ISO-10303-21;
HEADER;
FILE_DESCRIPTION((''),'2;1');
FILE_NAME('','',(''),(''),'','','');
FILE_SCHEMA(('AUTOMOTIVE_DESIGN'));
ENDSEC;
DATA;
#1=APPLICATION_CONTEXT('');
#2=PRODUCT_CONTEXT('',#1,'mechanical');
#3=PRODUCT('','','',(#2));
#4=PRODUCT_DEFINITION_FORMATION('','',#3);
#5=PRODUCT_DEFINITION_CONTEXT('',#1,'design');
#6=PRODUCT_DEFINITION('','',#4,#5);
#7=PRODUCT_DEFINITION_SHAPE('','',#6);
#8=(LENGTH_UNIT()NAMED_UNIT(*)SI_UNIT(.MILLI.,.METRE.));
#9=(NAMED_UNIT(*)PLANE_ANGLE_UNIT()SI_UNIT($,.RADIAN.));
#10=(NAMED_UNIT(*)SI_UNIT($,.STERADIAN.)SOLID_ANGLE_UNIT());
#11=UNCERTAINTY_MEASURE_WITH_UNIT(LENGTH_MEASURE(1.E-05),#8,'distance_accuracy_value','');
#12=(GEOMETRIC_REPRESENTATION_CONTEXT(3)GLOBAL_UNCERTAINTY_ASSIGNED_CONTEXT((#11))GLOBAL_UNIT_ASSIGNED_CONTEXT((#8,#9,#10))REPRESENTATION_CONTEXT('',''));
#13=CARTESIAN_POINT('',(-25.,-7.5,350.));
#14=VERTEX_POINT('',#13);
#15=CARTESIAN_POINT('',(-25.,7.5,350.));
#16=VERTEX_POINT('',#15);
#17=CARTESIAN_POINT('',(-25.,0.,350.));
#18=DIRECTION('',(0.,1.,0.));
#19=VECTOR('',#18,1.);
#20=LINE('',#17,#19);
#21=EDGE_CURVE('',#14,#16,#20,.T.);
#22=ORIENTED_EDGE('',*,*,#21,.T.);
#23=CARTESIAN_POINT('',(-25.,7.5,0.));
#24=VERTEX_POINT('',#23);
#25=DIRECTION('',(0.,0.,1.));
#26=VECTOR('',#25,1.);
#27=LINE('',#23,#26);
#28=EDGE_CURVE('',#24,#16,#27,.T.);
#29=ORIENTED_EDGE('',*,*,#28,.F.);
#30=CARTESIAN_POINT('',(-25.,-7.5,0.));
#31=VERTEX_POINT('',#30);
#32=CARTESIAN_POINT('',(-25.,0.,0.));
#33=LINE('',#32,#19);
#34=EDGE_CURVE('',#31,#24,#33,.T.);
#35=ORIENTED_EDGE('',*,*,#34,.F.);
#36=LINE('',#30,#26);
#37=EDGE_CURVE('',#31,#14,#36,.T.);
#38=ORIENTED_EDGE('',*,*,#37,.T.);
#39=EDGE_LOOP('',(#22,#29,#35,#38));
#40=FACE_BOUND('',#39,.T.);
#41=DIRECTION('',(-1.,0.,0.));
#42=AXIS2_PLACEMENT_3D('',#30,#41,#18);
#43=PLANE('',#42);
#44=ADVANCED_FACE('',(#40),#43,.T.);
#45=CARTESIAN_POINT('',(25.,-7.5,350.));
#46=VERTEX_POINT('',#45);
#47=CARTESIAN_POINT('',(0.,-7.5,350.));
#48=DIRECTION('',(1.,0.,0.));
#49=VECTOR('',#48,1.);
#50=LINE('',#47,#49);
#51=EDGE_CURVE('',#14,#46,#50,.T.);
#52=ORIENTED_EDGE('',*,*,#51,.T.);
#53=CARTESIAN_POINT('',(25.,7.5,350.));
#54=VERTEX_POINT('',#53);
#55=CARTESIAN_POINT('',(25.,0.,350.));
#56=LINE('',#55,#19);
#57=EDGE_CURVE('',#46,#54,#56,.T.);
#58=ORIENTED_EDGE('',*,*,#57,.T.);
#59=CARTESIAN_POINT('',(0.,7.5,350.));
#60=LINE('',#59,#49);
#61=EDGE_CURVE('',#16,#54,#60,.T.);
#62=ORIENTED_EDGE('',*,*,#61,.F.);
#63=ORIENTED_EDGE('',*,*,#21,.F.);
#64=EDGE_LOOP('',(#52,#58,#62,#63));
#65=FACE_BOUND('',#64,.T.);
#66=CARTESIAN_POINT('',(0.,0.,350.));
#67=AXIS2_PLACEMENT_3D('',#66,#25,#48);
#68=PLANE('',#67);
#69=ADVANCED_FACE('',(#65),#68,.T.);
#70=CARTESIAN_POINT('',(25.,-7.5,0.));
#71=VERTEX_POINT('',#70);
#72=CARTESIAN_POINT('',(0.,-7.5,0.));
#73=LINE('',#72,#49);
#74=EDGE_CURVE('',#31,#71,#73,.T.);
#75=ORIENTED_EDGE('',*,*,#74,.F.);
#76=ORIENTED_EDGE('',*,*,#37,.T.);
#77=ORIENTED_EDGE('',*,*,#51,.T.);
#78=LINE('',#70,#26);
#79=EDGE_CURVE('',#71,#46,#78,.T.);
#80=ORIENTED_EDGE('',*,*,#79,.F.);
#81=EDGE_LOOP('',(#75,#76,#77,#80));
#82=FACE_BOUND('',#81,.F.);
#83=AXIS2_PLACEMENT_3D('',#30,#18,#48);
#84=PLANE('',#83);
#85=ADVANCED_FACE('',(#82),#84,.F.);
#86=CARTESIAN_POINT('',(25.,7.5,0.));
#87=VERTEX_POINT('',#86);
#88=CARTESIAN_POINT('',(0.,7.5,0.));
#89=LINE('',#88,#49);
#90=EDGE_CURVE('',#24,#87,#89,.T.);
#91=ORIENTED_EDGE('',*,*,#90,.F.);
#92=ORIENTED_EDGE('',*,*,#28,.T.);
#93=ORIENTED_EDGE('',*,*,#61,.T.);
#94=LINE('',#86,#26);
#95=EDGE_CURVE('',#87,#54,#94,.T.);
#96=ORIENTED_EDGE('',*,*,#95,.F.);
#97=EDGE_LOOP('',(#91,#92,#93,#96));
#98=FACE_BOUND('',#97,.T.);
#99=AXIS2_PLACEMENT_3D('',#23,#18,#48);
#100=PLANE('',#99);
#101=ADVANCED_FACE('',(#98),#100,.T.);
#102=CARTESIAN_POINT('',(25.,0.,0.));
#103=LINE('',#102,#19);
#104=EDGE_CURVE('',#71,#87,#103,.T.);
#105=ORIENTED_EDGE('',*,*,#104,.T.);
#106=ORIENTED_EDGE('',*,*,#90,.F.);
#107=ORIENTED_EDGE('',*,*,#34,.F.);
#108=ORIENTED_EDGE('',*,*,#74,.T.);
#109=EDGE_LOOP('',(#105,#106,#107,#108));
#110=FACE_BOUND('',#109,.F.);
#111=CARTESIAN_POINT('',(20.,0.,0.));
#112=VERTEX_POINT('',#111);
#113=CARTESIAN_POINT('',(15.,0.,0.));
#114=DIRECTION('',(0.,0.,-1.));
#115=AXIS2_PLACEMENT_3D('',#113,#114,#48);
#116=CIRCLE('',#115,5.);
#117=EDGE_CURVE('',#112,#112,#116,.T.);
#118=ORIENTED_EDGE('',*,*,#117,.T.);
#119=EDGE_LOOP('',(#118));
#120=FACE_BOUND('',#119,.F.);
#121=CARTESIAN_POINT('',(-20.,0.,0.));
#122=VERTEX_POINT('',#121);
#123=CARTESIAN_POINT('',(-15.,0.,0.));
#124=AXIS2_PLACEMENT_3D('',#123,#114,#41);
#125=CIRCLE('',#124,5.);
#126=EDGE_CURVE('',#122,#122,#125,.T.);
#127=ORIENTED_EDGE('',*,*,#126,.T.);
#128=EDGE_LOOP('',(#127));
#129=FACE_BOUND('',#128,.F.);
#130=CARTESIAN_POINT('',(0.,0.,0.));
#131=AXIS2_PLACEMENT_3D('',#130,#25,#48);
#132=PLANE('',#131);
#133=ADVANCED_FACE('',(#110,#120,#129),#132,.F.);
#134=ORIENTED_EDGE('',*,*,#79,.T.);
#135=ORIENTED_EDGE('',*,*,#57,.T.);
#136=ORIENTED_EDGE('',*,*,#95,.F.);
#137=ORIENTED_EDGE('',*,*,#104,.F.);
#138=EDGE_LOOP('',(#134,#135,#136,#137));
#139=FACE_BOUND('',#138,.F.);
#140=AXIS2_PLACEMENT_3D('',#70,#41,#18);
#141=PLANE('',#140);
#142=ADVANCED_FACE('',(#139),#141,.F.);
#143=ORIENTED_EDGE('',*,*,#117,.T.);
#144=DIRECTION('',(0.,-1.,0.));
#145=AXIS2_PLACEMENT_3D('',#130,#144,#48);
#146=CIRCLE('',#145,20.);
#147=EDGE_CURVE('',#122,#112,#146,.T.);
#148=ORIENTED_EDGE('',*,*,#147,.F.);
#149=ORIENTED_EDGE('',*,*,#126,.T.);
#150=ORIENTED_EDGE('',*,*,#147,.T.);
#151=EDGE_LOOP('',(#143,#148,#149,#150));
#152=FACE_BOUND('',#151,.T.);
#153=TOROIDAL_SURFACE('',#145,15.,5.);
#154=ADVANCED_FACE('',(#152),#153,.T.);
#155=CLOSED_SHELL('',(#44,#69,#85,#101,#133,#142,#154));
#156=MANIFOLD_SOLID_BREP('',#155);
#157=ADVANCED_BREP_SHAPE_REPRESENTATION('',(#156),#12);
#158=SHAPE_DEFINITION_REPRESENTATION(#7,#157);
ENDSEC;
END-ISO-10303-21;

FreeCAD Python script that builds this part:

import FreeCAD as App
import Part
import Sketcher
from FreeCAD import Vector

doc = App.newDocument("Part")
params = doc.addObject("Spreadsheet::Sheet", "Params")
for row, (alias, value) in enumerate([
    ("sketch1_width", "50 mm"),
    ("sketch1_height", "15 mm"),
    ("pad1_length", "350 mm"),
    ("sketch2_diameter", "10 mm"),
    ("revolution_angle", "360 deg"),
], start=1):
    params.set(f"A{row}", alias)
    params.set(f"B{row}", "=" + value)
    params.setAlias(f"B{row}", alias)

body = doc.addObject("PartDesign::Body", "Body")

sketch1 = doc.addObject("Sketcher::SketchObject", "Sketch")
body.addObject(sketch1)
sketch1.AttachmentSupport = (doc.XY_Plane, [""])
sketch1.MapMode = "FlatFace"
sketch1.addGeometry(Part.LineSegment(Vector(-25, 8, 0), Vector(-25, -8, 0)), False)
sketch1.addGeometry(Part.LineSegment(Vector(-25, -8, 0), Vector(25, -8, 0)), False)
sketch1.addGeometry(Part.LineSegment(Vector(25, -8, 0), Vector(25, 8, 0)), False)
sketch1.addGeometry(Part.LineSegment(Vector(25, 8, 0), Vector(-25, 8, 0)), False)
sketch1.addConstraint(Sketcher.Constraint("Coincident", 0, 2, 1, 1))
sketch1.addConstraint(Sketcher.Constraint("Coincident", 1, 2, 2, 1))
sketch1.addConstraint(Sketcher.Constraint("Coincident", 2, 2, 3, 1))
sketch1.addConstraint(Sketcher.Constraint("Coincident", 3, 2, 0, 1))
sketch1.addConstraint(Sketcher.Constraint("Vertical", 0))
sketch1.addConstraint(Sketcher.Constraint("Horizontal", 1))
sketch1.addConstraint(Sketcher.Constraint("Vertical", 2))
sketch1.addConstraint(Sketcher.Constraint("Horizontal", 3))
sketch1.addConstraint(Sketcher.Constraint("Symmetric", 0, 2, 2, 2, -1, 1))
sketch1.addConstraint(Sketcher.Constraint("DistanceX", 1, 1, 1, 2, 50.0))
sketch1.addConstraint(Sketcher.Constraint("DistanceY", 0, 2, 0, 1, 15.0))
sketch1.setExpression("Constraints[9]", "Params.sketch1_width")
sketch1.setExpression("Constraints[10]", "Params.sketch1_height")
pad1 = doc.addObject("PartDesign::Pad", "Pad")
body.addObject(pad1)
pad1.Profile = sketch1
pad1.setExpression("Length", "Params.pad1_length")

sketch2 = doc.addObject("Sketcher::SketchObject", "Sketch001")
body.addObject(sketch2)
sketch2.AttachmentSupport = (doc.XY_Plane, [""])
sketch2.MapMode = "FlatFace"
sketch2.addGeometry(Part.Circle(Vector(15, 0, 0), Vector(0, 0, 1), 5), False)
sketch2.addGeometry(Part.Circle(Vector(-15, 0, 0), Vector(0, 0, 1), 5), False)
sketch2.addConstraint(Sketcher.Constraint("Equal", 0, 1))
sketch2.addConstraint(Sketcher.Constraint("Symmetric", 0, 3, 1, 3, -1, 1))
sketch2.addConstraint(Sketcher.Constraint("PointOnObject", 0, 3, -1))
sketch2.addConstraint(Sketcher.Constraint("Diameter", 0, 10.0))
sketch2.addConstraint(Sketcher.Constraint("DistanceX", -1, 1, 0, 3, 15.0))
sketch2.setExpression("Constraints[3]", "Params.sketch2_diameter")
revolution = doc.addObject("PartDesign::Revolution", "Revolution")
body.addObject(revolution)
revolution.Profile = sketch2
revolution.ReferenceAxis = (sketch2, ["V_Axis"])
revolution.setExpression("Angle", "Params.revolution_angle")

doc.recompute()
